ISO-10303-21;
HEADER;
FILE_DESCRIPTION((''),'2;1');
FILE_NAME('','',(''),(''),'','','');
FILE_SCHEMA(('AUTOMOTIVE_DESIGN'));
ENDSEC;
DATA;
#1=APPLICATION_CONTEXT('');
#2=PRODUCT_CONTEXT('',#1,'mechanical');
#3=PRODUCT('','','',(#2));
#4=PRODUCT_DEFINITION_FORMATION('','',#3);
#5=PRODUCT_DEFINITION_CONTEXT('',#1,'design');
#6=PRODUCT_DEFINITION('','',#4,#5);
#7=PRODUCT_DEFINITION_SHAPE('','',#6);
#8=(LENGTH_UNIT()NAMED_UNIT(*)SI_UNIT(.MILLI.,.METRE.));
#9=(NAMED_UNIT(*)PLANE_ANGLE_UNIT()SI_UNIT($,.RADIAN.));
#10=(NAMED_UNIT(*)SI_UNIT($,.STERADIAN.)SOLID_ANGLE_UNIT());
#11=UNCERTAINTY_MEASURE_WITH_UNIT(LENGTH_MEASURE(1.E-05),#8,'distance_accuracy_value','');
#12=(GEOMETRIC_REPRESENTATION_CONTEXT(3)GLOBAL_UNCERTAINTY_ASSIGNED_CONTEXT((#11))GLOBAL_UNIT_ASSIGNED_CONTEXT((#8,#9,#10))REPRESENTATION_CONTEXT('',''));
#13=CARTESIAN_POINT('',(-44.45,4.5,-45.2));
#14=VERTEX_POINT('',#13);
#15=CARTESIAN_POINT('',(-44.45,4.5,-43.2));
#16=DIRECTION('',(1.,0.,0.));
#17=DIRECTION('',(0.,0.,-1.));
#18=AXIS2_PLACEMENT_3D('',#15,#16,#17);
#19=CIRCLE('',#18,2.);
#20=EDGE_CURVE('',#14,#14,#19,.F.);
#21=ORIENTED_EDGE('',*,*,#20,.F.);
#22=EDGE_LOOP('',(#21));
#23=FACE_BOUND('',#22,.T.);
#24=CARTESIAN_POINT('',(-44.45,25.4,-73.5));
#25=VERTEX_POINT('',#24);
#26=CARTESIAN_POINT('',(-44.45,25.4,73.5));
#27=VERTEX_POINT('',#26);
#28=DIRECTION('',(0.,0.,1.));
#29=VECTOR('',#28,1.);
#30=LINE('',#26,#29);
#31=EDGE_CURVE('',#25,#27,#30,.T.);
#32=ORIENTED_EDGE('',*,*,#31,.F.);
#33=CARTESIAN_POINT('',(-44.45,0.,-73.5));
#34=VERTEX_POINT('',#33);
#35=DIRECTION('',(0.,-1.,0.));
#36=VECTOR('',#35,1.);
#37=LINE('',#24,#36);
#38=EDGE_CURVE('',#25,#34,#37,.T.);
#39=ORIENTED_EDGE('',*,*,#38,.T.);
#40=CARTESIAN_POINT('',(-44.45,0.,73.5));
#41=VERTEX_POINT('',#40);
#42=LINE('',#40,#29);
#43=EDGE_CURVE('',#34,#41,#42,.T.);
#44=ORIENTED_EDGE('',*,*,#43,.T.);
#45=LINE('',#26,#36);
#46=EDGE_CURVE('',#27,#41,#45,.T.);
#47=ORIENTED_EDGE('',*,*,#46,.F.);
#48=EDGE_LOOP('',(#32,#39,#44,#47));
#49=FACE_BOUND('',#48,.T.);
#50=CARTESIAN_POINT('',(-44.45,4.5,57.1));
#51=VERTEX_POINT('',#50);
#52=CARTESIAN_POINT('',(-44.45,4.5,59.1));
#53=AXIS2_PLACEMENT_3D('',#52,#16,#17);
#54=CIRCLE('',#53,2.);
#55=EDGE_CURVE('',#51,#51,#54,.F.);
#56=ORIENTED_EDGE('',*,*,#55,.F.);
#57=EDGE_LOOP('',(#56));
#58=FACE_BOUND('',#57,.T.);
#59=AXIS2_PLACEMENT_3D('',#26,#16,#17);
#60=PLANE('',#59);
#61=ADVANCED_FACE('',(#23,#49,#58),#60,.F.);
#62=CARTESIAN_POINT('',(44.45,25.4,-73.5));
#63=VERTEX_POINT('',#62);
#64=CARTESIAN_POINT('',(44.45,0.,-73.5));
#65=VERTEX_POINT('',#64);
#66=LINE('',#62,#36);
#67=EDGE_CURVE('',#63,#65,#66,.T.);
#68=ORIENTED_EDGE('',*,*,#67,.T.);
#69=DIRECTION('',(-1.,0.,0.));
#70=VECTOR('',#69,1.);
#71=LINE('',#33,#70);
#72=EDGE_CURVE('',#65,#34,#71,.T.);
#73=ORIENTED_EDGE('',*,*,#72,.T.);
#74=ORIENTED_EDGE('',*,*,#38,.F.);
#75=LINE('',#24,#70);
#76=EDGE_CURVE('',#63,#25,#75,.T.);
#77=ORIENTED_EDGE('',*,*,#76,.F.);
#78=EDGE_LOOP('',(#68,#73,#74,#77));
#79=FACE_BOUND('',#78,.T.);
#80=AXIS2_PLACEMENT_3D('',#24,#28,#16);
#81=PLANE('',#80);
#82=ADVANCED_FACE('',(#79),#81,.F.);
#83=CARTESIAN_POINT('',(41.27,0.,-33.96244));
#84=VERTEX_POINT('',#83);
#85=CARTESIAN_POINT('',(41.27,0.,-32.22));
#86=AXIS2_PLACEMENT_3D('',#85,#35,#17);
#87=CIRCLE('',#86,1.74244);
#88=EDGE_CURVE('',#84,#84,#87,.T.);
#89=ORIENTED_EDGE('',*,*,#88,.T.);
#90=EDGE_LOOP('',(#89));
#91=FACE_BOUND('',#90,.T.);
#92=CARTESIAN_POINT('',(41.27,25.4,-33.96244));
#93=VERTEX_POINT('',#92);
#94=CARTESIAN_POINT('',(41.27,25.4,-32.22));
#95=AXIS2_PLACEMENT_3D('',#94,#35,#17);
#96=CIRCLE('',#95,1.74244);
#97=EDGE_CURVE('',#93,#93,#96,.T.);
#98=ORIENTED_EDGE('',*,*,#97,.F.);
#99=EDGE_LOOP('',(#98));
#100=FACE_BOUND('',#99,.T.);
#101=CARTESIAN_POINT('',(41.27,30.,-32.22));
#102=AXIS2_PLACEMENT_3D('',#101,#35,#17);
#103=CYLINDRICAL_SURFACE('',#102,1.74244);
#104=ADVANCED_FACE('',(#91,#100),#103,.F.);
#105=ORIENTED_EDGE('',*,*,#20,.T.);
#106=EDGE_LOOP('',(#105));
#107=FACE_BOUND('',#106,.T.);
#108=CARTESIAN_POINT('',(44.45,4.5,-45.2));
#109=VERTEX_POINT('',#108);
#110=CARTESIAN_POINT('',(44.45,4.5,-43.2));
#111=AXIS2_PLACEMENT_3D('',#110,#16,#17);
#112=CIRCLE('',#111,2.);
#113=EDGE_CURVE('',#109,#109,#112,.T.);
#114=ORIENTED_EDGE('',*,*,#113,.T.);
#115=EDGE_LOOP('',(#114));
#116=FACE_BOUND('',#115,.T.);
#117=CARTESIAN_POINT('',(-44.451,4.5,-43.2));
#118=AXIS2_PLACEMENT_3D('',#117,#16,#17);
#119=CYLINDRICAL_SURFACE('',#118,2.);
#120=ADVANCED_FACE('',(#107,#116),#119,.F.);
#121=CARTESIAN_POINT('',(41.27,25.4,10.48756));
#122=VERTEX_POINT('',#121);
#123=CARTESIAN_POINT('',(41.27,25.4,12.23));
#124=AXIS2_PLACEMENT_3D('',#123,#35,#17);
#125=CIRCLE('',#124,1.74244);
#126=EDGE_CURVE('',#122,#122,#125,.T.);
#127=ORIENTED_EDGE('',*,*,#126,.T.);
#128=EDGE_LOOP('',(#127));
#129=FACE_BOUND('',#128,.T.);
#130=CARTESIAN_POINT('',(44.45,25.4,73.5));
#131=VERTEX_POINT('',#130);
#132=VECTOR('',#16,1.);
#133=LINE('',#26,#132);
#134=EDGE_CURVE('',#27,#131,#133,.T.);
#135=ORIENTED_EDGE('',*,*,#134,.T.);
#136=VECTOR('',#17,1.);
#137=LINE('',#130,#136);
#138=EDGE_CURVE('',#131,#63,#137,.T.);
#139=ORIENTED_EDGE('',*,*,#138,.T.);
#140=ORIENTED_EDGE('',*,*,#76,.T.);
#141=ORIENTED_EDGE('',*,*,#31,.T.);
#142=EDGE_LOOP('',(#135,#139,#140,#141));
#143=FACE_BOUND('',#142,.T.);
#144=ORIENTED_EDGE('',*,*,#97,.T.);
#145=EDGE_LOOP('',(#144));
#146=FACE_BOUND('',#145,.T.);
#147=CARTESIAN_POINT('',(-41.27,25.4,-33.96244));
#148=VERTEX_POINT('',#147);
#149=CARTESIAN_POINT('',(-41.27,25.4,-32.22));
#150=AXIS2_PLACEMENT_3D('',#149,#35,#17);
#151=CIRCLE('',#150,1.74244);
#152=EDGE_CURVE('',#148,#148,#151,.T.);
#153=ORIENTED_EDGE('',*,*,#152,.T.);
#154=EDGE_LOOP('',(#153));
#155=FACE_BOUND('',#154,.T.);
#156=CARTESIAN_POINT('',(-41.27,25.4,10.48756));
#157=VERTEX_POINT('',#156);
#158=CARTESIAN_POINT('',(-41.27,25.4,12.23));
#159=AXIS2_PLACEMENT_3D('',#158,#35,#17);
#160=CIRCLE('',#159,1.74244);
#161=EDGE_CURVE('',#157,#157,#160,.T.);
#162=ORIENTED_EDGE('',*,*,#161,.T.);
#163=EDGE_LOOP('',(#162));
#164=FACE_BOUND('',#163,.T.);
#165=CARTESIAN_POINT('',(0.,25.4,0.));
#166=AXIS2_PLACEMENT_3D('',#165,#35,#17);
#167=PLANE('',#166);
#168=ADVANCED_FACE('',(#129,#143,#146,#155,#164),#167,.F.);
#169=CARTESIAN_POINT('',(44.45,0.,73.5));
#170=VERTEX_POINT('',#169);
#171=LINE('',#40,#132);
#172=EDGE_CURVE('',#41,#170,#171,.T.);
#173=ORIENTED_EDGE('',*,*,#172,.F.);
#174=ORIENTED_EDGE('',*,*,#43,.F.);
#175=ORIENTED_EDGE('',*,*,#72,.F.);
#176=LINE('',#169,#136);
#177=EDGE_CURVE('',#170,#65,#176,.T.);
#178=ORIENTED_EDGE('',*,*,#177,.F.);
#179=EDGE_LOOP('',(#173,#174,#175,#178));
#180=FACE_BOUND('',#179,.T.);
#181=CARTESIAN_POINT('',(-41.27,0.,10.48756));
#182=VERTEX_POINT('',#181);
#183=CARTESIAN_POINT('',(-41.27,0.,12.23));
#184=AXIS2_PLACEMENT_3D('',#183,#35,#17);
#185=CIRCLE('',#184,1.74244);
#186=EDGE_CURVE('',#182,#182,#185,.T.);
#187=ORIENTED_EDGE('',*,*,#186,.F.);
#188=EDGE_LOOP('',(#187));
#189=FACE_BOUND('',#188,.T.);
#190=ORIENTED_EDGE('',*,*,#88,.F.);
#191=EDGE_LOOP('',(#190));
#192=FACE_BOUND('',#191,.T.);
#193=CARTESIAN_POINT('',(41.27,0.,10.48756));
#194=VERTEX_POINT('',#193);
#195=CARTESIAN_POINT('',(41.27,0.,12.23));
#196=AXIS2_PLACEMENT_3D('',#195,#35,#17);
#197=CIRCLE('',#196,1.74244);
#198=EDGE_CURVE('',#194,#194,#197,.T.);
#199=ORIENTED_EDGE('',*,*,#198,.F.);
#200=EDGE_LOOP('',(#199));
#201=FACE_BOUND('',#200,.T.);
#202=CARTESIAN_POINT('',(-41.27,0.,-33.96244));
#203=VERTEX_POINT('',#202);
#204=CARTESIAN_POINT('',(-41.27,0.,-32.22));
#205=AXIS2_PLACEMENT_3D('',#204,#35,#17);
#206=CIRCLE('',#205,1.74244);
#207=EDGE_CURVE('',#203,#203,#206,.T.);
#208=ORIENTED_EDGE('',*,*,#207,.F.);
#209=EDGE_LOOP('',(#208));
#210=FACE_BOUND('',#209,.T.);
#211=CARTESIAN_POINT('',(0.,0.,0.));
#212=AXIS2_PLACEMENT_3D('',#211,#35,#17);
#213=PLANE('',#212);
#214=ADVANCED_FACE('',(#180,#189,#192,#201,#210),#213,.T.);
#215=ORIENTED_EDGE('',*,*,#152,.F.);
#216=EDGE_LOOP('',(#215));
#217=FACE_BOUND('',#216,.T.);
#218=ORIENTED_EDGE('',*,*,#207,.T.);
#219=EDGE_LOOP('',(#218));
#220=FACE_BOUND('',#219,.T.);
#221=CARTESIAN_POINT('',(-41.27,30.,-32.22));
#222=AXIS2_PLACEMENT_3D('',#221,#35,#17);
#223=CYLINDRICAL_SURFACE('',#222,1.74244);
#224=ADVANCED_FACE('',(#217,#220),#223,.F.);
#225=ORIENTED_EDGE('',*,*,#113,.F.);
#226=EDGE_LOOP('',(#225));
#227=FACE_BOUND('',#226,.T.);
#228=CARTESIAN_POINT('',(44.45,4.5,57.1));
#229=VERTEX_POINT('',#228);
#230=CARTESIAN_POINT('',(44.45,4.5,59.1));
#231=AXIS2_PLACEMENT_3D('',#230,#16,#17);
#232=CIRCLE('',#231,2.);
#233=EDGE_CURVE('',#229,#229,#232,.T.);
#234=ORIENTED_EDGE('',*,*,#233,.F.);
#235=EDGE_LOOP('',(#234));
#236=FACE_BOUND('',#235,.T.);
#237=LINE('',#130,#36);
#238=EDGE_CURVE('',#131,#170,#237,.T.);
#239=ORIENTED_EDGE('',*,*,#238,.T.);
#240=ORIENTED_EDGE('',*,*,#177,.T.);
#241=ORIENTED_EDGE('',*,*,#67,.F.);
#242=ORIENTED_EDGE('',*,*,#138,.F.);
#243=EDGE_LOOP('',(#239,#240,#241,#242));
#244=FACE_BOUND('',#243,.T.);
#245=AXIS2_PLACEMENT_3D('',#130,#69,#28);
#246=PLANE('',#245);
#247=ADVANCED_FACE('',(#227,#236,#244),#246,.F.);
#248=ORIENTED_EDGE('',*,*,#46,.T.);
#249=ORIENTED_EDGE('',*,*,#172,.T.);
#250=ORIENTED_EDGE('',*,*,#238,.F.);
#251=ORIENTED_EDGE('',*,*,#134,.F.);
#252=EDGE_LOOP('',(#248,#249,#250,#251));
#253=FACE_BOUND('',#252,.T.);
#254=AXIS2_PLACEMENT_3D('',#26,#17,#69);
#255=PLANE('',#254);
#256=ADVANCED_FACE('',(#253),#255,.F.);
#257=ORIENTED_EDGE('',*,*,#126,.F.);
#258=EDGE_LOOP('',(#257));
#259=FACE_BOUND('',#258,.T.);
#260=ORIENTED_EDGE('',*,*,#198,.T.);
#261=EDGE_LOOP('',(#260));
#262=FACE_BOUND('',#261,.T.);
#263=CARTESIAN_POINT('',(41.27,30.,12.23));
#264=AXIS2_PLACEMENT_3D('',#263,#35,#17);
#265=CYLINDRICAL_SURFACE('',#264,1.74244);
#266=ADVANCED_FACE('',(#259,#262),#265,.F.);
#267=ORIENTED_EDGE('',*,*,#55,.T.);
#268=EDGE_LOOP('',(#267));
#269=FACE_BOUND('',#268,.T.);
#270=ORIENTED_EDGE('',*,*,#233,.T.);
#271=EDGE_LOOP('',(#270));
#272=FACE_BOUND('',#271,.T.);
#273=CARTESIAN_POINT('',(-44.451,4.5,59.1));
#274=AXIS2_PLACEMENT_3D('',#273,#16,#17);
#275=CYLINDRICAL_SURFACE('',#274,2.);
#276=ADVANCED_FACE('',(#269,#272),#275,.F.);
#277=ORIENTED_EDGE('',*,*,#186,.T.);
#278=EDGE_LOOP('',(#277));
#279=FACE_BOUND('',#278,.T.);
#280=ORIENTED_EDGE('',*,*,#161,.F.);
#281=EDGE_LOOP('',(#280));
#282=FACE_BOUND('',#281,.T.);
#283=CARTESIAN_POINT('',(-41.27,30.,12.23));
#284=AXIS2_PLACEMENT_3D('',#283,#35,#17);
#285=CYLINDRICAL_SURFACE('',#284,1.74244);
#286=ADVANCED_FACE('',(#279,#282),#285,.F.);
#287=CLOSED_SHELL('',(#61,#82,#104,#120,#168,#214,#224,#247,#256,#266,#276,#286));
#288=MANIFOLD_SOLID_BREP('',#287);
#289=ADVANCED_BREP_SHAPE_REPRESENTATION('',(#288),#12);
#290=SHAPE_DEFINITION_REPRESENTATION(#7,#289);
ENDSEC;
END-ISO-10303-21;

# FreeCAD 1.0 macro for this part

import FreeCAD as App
import Part
import Sketcher


def add_polygon(sketch, points):
    """Adds a closed chain of lines whose ends are joined by coincident constraints."""
    first, n = sketch.GeometryCount, len(points)
    for a, b in zip(points, points[1:] + points[:1]):
        sketch.addGeometry(Part.LineSegment(App.Vector(*a, 0), App.Vector(*b, 0)), False)
    for i in range(n):
        sketch.addConstraint(Sketcher.Constraint("Coincident", first + i, 2, first + (i + 1) % n, 1))

doc = App.newDocument("Part")
body = doc.addObject("PartDesign::Body", "Body")

# Sketch on XZ plane
sketch1 = body.newObject("Sketcher::SketchObject", "Sketch")
sketch1.AttachmentSupport = (doc.getObject("XZ_Plane"), [""])
sketch1.MapMode = "FlatFace"
add_polygon(sketch1, [(-44, -74), (-44, 74), (44, 74), (44, -74)])  # lines 0-3
sketch1.addConstraint(Sketcher.Constraint("Vertical", 0))
sketch1.addConstraint(Sketcher.Constraint("Horizontal", 1))
sketch1.addConstraint(Sketcher.Constraint("Vertical", 2))
sketch1.addConstraint(Sketcher.Constraint("Horizontal", 3))
sketch1.addConstraint(Sketcher.Constraint("Symmetric", 0, 2, 2, 2, -1, 1))
sketch1.addConstraint(Sketcher.Constraint("DistanceY", 0, 1, 0, 2, 147.0))
sketch1.addConstraint(Sketcher.Constraint("DistanceX", 1, 1, 1, 2, 88.9))
pad1 = body.newObject("PartDesign::Pad", "Pad")
pad1.Profile = sketch1
pad1.Length = 25.4
pad1.Reversed = True

# Sketch on XZ plane
sketch2 = body.newObject("Sketcher::SketchObject", "Sketch001")
sketch2.AttachmentSupport = (doc.getObject("XZ_Plane"), [""])
sketch2.MapMode = "FlatFace"
sketch2.addGeometry(Part.Circle(App.Vector(41.3, -32.2, 0), App.Vector(0, 0, 1), 1.7), False)
sketch2.addGeometry(Part.Circle(App.Vector(41.3, 12.2, 0), App.Vector(0, 0, 1), 1.7), False)
sketch2.addGeometry(Part.Circle(App.Vector(-41.3, -32.2, 0), App.Vector(0, 0, 1), 1.7), False)
sketch2.addGeometry(Part.Circle(App.Vector(-41.3, 12.2, 0), App.Vector(0, 0, 1), 1.7), False)
sketch2.addConstraint(Sketcher.Constraint("Equal", 0, 1))
sketch2.addConstraint(Sketcher.Constraint("Equal", 1, 2))
sketch2.addConstraint(Sketcher.Constraint("Equal", 2, 3))
sketch2.addConstraint(Sketcher.Constraint("Symmetric", 0, 3, 2, 3, -2))
sketch2.addConstraint(Sketcher.Constraint("Symmetric", 1, 3, 3, 3, -2))
sketch2.addConstraint(Sketcher.Constraint("Vertical", 0, 3, 1, 3))
sketch2.addConstraint(Sketcher.Constraint("Diameter", 0, 3.48488))
sketch2.addConstraint(Sketcher.Constraint("DistanceX", -1, 1, 0, 3, 41.27))
sketch2.addConstraint(Sketcher.Constraint("DistanceY", 0, 3, -1, 1, 32.22))
sketch2.addConstraint(Sketcher.Constraint("DistanceY", -1, 1, 1, 3, 12.23))
pocket1 = body.newObject("PartDesign::Pocket", "Pocket")
pocket1.Profile = sketch2
pocket1.Length = 30

# Sketch on YZ plane
sketch3 = body.newObject("Sketcher::SketchObject", "Sketch002")
sketch3.AttachmentSupport = (doc.getObject("YZ_Plane"), [""])
sketch3.MapMode = "FlatFace"
sketch3.AttachmentOffset = App.Placement(App.Vector(0, 0, 44.45), App.Rotation())
sketch3.addGeometry(Part.Circle(App.Vector(4.5, 59.1, 0), App.Vector(0, 0, 1), 2), False)
sketch3.addConstraint(Sketcher.Constraint("Diameter", 0, 4.0))
sketch3.addConstraint(Sketcher.Constraint("DistanceX", -1, 1, 0, 3, 4.5))
sketch3.addConstraint(Sketcher.Constraint("DistanceY", -1, 1, 0, 3, 59.1))
pocket2 = body.newObject("PartDesign::Pocket", "Pocket001")
pocket2.Profile = sketch3
pocket2.Type = "UpToFirst"

# Sketch on YZ plane
sketch4 = body.newObject("Sketcher::SketchObject", "Sketch003")
sketch4.AttachmentSupport = (doc.getObject("YZ_Plane"), [""])
sketch4.MapMode = "FlatFace"
sketch4.AttachmentOffset = App.Placement(App.Vector(0, 0, 44.45), App.Rotation())
sketch4.addGeometry(Part.Circle(App.Vector(4.5, -43.2, 0), App.Vector(0, 0, 1), 2), False)
sketch4.addConstraint(Sketcher.Constraint("Diameter", 0, 4.0))
sketch4.addConstraint(Sketcher.Constraint("DistanceX", -1, 1, 0, 3, 4.5))
sketch4.addConstraint(Sketcher.Constraint("DistanceY", 0, 3, -1, 1, 43.2))
pocket3 = body.newObject("PartDesign::Pocket", "Pocket002")
pocket3.Profile = sketch4
pocket3.Type = "UpToFirst"

doc.recompute()
